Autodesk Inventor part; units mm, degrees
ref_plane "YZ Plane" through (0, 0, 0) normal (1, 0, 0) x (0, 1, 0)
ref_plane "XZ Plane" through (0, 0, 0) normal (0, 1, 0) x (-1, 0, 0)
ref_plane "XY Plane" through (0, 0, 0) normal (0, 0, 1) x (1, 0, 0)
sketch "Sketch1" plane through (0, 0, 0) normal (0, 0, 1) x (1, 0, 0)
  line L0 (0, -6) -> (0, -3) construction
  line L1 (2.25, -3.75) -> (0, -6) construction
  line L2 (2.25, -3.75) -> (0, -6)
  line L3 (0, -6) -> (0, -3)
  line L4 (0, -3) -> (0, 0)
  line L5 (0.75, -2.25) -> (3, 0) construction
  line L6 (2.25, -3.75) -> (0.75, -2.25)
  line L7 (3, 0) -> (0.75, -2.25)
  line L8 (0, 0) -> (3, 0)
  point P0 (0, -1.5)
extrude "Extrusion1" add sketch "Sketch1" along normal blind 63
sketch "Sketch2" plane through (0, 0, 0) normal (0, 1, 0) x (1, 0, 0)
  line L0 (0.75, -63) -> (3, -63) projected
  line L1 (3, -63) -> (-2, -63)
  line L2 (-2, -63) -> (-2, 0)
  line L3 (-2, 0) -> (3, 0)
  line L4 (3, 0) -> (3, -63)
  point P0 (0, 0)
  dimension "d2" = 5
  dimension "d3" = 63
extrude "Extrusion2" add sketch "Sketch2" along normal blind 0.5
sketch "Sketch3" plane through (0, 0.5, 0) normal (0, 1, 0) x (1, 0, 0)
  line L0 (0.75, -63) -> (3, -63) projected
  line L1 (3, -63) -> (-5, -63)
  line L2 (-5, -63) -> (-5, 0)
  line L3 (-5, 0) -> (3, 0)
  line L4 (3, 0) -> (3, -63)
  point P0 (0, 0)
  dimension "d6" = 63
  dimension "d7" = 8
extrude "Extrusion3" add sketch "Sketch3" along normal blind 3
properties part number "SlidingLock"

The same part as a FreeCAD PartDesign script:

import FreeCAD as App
import Part
import Sketcher
from FreeCAD import Vector
Q = App.Units.Quantity


def add_polygon(sketch, points):
    """Adds a closed chain of lines whose ends are joined by coincident constraints."""
    first, n = sketch.GeometryCount, len(points)
    for a, b in zip(points, points[1:] + points[:1]):
        sketch.addGeometry(Part.LineSegment(App.Vector(*a, 0), App.Vector(*b, 0)), False)
    for i in range(n):
        sketch.addConstraint(Sketcher.Constraint("Coincident", first + i, 2, first + (i + 1) % n, 1))

doc = App.newDocument("Part")
body = doc.addObject("PartDesign::Body", "Body")

sketch1 = doc.addObject("Sketcher::SketchObject", "Sketch")
body.addObject(sketch1)
sketch1.AttachmentSupport = (doc.XY_Plane, [""])
sketch1.MapMode = "FlatFace"
add_polygon(sketch1, [(0, -6), (2.25, -3.75), (0.75, -2.25), (3, 0), (0, 0)])
sketch1.addConstraint([
    Sketcher.Constraint("Horizontal", 3),
    Sketcher.Constraint("Vertical", 4),
    Sketcher.Constraint("Coincident", 3, 2, -1, 1),
    Sketcher.Constraint("Perpendicular", 0, 1),
    Sketcher.Constraint("Perpendicular", 1, 2),
    Sketcher.Constraint("Equal", 0, 2),
    Sketcher.Constraint("DistanceX", 3, 2, 3, 1, 3.0),
    Sketcher.Constraint("DistanceY", 4, 2, 4, 1, 6.0),
    Sketcher.Constraint("Angle", 0, Q("45 deg")),
])
pad1 = doc.addObject("PartDesign::Pad", "Pad")
body.addObject(pad1)
pad1.Profile = sketch1
pad1.Length = 63

sketch2 = doc.addObject("Sketcher::SketchObject", "Sketch001")
body.addObject(sketch2)
sketch2.AttachmentSupport = (doc.XZ_Plane, [""])
sketch2.MapMode = "FlatFace"
add_polygon(sketch2, [(-2, 63), (3, 63), (3, 0), (-2, 0)])
sketch2.addConstraint([
    Sketcher.Constraint("Horizontal", 0),
    Sketcher.Constraint("Vertical", 1),
    Sketcher.Constraint("Horizontal", 2),
    Sketcher.Constraint("Vertical", 3),
    Sketcher.Constraint("PointOnObject", 1, 2, -1),
    Sketcher.Constraint("DistanceX", 0, 1, 0, 2, 5.0),
    Sketcher.Constraint("DistanceY", 1, 2, 1, 1, 63.0),
    Sketcher.Constraint("DistanceX", -1, 1, 0, 2, 3.0),
])
pad2 = doc.addObject("PartDesign::Pad", "Pad001")
body.addObject(pad2)
pad2.Profile = sketch2
pad2.Length = 0.5
pad2.Reversed = True

sketch3 = doc.addObject("Sketcher::SketchObject", "Sketch002")
body.addObject(sketch3)
sketch3.AttachmentSupport = (doc.XZ_Plane, [""])
sketch3.MapMode = "FlatFace"
sketch3.AttachmentOffset = App.Placement(Vector(0, 0, -0.5), App.Rotation())
add_polygon(sketch3, [(-5, 63), (3, 63), (3, 0), (-5, 0)])
sketch3.addConstraint([
    Sketcher.Constraint("Horizontal", 0),
    Sketcher.Constraint("Vertical", 1),
    Sketcher.Constraint("Horizontal", 2),
    Sketcher.Constraint("Vertical", 3),
    Sketcher.Constraint("PointOnObject", 1, 2, -1),
    Sketcher.Constraint("DistanceX", 0, 1, 0, 2, 8.0),
    Sketcher.Constraint("DistanceY", 1, 2, 1, 1, 63.0),
    Sketcher.Constraint("DistanceX", -1, 1, 0, 2, 3.0),
])
pad3 = doc.addObject("PartDesign::Pad", "Pad002")
body.addObject(pad3)
pad3.Profile = sketch3
pad3.Length = 3
pad3.Reversed = True

doc.recompute()
